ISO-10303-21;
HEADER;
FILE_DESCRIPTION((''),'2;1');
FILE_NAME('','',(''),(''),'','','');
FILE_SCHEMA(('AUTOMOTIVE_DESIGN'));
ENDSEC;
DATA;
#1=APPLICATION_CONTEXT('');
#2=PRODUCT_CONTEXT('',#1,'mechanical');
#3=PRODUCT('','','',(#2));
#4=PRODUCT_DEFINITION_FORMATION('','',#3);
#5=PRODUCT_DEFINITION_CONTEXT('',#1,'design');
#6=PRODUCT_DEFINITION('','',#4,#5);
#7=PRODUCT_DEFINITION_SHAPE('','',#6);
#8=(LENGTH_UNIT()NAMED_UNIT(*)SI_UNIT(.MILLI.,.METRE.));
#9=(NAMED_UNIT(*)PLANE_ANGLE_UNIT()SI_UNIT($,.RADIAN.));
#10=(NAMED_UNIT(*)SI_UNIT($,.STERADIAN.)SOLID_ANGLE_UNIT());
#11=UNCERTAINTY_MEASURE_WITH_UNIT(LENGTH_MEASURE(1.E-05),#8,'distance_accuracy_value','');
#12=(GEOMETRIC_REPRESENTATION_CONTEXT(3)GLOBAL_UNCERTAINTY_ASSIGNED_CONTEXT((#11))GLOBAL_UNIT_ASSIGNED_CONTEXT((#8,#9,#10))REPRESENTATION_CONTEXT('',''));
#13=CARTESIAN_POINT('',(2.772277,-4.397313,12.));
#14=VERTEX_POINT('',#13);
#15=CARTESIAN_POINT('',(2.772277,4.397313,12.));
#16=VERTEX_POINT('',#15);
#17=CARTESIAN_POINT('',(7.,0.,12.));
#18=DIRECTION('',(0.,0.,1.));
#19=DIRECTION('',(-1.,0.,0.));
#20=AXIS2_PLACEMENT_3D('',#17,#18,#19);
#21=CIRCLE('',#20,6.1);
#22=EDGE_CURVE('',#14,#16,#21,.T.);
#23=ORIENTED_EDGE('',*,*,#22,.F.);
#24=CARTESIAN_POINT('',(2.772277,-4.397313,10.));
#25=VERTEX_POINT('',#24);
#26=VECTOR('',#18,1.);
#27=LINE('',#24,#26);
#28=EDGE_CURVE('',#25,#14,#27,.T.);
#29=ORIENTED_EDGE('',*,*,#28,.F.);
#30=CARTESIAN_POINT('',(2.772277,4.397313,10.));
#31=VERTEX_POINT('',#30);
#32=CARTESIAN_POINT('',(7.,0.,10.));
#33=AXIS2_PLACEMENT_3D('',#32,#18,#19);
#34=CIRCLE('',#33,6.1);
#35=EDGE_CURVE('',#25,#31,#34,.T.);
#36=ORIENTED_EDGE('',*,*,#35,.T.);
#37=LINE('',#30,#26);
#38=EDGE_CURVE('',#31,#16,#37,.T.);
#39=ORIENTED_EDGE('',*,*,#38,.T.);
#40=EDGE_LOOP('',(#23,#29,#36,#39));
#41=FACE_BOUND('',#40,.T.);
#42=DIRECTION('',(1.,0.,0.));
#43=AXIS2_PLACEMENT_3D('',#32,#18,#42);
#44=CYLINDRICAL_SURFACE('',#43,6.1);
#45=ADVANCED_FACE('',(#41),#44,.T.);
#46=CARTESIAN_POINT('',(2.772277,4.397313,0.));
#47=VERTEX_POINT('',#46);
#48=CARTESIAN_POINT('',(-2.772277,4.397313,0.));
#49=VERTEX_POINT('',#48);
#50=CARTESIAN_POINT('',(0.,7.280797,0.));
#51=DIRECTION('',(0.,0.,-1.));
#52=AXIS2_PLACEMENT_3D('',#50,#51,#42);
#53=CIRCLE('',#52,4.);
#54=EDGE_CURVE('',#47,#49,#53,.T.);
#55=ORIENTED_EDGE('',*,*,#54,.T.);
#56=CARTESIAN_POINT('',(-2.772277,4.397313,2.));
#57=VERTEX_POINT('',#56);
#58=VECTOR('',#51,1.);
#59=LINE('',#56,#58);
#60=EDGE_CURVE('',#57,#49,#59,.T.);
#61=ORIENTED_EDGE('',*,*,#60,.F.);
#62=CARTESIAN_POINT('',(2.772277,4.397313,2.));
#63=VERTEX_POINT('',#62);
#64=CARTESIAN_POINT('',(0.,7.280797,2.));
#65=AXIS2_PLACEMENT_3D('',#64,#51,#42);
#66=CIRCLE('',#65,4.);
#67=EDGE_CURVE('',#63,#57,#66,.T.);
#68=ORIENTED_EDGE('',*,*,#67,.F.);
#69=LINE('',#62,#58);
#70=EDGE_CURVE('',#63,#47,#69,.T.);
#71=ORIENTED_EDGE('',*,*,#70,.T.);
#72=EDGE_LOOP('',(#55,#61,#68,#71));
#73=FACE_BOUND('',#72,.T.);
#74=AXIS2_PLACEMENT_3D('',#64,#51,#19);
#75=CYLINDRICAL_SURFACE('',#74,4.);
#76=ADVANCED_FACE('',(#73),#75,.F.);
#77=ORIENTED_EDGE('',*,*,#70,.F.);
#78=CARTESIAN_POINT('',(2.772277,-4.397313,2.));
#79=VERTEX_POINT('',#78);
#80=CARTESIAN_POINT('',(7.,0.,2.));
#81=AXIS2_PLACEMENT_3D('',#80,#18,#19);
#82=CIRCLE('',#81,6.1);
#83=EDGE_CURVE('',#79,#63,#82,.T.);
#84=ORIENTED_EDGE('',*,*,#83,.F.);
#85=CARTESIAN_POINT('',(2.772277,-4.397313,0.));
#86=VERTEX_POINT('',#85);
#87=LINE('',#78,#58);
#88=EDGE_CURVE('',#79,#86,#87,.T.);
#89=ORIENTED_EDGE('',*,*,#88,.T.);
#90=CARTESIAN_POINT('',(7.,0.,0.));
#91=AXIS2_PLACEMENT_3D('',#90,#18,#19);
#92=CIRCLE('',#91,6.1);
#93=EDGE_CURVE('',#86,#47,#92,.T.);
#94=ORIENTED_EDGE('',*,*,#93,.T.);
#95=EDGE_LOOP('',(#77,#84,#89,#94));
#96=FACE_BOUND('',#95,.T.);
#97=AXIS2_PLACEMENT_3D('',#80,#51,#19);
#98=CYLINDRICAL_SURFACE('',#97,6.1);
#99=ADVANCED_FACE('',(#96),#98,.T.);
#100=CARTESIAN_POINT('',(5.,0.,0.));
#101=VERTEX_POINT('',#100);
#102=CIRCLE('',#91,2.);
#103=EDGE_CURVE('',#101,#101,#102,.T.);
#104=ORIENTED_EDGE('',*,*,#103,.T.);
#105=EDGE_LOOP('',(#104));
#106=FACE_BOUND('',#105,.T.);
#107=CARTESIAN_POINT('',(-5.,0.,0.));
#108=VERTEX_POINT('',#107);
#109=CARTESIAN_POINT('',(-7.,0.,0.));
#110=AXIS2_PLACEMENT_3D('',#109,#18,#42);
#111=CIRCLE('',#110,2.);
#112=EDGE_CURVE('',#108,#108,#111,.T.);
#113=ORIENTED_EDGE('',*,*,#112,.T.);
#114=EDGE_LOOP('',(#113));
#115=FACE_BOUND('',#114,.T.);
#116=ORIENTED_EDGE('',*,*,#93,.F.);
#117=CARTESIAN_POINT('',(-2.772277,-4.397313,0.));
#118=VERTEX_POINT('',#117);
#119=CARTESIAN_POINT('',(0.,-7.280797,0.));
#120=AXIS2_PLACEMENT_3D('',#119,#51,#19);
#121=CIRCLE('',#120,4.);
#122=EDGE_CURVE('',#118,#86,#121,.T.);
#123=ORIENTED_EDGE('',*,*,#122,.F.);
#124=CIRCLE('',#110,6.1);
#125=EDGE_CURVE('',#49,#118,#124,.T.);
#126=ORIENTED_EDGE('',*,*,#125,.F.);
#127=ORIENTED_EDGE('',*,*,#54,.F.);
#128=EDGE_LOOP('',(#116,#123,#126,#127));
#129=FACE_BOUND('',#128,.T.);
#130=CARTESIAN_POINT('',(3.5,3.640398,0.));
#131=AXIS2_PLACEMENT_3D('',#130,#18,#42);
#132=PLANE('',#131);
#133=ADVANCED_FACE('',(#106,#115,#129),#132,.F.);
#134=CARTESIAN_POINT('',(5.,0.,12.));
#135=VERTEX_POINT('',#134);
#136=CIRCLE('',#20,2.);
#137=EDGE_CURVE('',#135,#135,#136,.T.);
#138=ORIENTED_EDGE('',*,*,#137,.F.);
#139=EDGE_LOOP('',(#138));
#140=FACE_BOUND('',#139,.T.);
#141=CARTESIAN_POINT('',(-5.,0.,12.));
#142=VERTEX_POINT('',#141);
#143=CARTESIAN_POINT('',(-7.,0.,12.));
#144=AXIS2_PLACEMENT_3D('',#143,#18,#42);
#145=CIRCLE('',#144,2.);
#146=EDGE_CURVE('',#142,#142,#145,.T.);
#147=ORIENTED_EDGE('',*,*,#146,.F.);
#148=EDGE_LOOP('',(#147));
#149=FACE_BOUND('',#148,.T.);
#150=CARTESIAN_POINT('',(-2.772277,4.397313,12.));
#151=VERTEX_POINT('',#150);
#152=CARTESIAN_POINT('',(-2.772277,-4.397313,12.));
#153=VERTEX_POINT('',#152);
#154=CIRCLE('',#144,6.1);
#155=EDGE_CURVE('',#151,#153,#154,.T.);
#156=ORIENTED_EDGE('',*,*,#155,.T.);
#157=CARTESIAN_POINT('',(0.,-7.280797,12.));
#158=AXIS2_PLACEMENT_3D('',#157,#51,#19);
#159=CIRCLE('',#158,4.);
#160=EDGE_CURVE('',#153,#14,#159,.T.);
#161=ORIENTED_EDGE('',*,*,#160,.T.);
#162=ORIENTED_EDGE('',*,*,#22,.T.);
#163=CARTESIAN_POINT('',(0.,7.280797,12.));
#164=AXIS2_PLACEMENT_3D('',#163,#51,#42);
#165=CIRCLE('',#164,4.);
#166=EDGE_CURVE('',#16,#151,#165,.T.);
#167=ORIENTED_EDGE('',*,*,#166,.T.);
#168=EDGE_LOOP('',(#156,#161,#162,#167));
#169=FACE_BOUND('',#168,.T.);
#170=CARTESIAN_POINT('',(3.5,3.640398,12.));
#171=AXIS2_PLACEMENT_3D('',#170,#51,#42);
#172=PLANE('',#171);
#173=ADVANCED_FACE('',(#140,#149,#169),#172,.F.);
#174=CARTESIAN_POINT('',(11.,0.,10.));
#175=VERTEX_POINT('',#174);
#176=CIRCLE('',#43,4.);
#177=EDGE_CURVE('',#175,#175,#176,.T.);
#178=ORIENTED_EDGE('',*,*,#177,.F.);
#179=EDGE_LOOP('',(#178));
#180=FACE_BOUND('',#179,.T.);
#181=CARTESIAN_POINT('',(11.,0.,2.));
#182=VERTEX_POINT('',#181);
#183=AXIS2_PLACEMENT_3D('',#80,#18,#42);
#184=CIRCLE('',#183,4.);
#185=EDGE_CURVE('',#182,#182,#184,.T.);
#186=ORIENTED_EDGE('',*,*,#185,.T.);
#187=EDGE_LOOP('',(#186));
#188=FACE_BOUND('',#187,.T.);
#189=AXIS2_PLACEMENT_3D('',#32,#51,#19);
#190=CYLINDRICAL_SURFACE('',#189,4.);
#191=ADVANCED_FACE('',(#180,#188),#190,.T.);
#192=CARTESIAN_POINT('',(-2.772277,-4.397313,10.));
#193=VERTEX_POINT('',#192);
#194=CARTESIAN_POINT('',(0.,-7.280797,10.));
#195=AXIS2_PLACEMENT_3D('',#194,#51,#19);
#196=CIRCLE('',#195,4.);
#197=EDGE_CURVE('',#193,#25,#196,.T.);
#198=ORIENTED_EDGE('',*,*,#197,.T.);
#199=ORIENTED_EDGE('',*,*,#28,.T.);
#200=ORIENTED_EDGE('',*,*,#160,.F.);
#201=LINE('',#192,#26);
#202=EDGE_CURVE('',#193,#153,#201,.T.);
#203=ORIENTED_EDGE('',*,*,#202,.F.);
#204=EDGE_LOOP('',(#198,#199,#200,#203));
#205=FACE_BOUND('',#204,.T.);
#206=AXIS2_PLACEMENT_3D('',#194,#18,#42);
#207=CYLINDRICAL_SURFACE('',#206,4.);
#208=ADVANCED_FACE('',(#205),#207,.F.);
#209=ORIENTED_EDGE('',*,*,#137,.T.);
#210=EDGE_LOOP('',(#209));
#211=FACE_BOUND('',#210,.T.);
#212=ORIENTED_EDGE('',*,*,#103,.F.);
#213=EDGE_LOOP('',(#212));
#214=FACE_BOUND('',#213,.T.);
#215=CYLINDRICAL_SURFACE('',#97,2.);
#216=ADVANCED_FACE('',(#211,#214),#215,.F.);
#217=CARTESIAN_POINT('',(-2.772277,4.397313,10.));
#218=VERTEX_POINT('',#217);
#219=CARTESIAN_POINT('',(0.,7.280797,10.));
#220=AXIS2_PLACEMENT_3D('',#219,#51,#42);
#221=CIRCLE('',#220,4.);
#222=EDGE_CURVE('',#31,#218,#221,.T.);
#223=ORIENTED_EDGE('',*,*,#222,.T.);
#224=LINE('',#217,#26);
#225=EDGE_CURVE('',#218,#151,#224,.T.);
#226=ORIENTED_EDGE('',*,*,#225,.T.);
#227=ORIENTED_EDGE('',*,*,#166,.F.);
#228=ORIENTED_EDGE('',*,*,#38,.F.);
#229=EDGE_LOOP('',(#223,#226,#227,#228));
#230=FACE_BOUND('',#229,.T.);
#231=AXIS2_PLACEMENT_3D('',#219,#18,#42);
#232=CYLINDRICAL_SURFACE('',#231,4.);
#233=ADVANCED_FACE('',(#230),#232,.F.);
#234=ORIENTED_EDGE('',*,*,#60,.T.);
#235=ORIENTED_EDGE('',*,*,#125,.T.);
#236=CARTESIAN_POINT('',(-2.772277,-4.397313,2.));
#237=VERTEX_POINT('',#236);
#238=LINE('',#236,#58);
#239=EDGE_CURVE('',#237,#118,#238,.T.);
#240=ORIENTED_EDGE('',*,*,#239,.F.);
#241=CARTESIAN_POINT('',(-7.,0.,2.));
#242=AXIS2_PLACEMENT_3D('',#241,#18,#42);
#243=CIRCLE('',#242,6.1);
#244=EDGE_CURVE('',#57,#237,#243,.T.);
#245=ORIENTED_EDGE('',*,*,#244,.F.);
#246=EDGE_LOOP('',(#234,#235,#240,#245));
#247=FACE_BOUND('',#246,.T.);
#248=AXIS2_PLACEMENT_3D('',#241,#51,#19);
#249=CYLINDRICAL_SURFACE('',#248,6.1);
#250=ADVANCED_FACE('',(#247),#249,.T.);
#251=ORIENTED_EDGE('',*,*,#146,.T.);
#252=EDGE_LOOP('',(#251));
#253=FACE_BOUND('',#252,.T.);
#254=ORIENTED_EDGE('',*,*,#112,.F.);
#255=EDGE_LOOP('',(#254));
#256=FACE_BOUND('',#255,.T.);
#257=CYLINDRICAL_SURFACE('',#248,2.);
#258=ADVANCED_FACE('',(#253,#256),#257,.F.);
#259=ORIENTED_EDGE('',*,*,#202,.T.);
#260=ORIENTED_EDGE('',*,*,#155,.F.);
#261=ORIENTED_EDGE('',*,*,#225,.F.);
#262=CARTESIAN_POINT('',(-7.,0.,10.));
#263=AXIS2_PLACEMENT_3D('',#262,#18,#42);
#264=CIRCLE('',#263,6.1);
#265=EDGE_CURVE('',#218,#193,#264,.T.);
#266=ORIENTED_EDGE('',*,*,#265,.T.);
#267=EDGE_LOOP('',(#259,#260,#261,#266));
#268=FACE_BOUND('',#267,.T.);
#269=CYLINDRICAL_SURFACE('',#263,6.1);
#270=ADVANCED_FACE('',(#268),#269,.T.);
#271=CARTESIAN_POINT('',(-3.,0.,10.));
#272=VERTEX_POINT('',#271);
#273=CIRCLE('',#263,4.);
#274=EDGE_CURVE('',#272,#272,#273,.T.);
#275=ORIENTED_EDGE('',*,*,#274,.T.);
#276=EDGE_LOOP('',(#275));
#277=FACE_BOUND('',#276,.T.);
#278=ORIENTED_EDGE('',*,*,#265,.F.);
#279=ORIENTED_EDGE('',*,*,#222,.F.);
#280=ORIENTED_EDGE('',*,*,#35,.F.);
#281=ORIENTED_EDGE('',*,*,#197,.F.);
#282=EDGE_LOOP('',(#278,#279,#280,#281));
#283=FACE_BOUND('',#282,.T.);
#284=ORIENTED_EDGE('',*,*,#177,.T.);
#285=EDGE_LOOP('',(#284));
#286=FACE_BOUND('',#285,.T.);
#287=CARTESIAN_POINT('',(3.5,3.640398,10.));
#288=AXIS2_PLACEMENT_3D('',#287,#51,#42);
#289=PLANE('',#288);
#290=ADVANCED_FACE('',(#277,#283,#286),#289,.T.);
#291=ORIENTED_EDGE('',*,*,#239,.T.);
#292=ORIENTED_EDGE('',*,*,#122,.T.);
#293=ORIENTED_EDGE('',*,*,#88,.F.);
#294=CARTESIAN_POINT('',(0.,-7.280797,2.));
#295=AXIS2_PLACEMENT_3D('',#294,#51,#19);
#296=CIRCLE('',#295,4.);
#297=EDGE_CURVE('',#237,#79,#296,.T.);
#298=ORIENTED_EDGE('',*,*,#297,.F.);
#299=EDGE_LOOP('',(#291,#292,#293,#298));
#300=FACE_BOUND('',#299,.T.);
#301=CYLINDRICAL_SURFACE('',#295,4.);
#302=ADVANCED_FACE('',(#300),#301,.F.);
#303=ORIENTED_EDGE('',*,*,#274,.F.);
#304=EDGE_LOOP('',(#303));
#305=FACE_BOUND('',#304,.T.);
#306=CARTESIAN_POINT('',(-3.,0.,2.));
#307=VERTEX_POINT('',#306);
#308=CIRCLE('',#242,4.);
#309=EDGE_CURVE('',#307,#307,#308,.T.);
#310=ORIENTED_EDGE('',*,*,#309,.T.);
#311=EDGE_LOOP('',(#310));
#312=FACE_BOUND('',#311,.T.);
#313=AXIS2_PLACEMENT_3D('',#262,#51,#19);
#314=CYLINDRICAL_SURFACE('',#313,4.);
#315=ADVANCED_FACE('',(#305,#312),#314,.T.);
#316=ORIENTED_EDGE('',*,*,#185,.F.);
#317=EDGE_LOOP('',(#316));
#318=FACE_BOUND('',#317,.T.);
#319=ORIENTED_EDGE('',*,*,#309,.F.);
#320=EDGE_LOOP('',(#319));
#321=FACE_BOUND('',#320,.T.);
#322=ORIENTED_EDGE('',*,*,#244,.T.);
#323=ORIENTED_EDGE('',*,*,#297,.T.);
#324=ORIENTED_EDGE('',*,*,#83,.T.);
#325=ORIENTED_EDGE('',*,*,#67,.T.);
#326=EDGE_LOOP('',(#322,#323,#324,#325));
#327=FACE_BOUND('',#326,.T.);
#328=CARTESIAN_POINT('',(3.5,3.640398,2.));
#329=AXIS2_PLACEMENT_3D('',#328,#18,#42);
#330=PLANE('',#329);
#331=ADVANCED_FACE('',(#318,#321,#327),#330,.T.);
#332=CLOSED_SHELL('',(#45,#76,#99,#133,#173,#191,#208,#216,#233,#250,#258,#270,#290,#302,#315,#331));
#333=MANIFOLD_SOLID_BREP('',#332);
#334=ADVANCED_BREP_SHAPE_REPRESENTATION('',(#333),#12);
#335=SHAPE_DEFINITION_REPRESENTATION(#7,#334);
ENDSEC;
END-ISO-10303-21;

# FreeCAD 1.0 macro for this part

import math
import FreeCAD as App
import Part
import Sketcher

V = App.Vector
Q = App.Units.Quantity

doc = App.newDocument("Part")
params = doc.addObject("Spreadsheet::Sheet", "Params")
for row, (alias, value) in enumerate([
    ("sketch1_diameter", "4 mm"),
    ("sketch1_radius", "4 mm"),
    ("sketch1_radius2", "6.1 mm"),
    ("pad1_length", "2 mm"),
    ("sketch2_diameter", "8 mm"),
    ("sketch2_diameter2", "4 mm"),
    ("pad2_length", "8 mm"),
], start=1):
    params.set(f"A{row}", alias)
    params.set(f"B{row}", "=" + value)
    params.setAlias(f"B{row}", alias)

body = doc.addObject("PartDesign::Body", "Body")

sketch1 = doc.addObject("Sketcher::SketchObject", "Sketch")
body.addObject(sketch1)
sketch1.AttachmentSupport = (doc.XY_Plane, [""])
sketch1.MapMode = "FlatFace"
sketch1.addGeometry(Part.ArcOfCircle(Part.Circle(V(-7, 0, 0), V(0, 0, 1), 6.1), math.radians(46), math.radians(314)), False)
sketch1.addGeometry(Part.ArcOfCircle(Part.Circle(V(0, -7.3, 0), V(0, 0, 1), 4), math.radians(46), math.radians(134)), False)
sketch1.addGeometry(Part.ArcOfCircle(Part.Circle(V(7, 0, 0), V(0, 0, 1), 6.1), math.radians(-134), math.radians(134)), False)
sketch1.addGeometry(Part.ArcOfCircle(Part.Circle(V(0, 7.3, 0), V(0, 0, 1), 4), math.radians(-134), math.radians(-46)), False)
sketch1.addGeometry(Part.Circle(V(-7, 0, 0), V(0, 0, 1), 2), False)
sketch1.addGeometry(Part.Circle(V(7, 0, 0), V(0, 0, 1), 2), False)
sketch1.addConstraint(Sketcher.Constraint("Tangent", 0, 2, 1, 2))
sketch1.addConstraint(Sketcher.Constraint("Tangent", 1, 1, 2, 1))
sketch1.addConstraint(Sketcher.Constraint("Tangent", 2, 2, 3, 2))
sketch1.addConstraint(Sketcher.Constraint("Tangent", 3, 1, 0, 1))
sketch1.addConstraint(Sketcher.Constraint("Coincident", 4, 3, 0, 3))
sketch1.addConstraint(Sketcher.Constraint("Coincident", 5, 3, 2, 3))
sketch1.addConstraint(Sketcher.Constraint("Equal", 0, 2))
sketch1.addConstraint(Sketcher.Constraint("Equal", 1, 3))
sketch1.addConstraint(Sketcher.Constraint("Equal", 4, 5))
sketch1.addConstraint(Sketcher.Constraint("Symmetric", 0, 3, 2, 3, -1, 1))
sketch1.addConstraint(Sketcher.Constraint("PointOnObject", 0, 3, -1))
sketch1.addConstraint(Sketcher.Constraint("Diameter", 4, Q("4 mm")))
sketch1.addConstraint(Sketcher.Constraint("Radius", 1, Q("4 mm")))
sketch1.addConstraint(Sketcher.Constraint("Radius", 0, Q("6.1 mm")))
sketch1.addConstraint(Sketcher.Constraint("DistanceX", 0, 3, -1, 1, Q("7 mm")))
sketch1.setExpression("Constraints[11]", "Params.sketch1_diameter")
sketch1.setExpression("Constraints[12]", "Params.sketch1_radius")
sketch1.setExpression("Constraints[13]", "Params.sketch1_radius2")
pad1 = doc.addObject("PartDesign::Pad", "Pad")
body.addObject(pad1)
pad1.Profile = sketch1
pad1.setExpression("Length", "Params.pad1_length")

sketch2 = doc.addObject("Sketcher::SketchObject", "Sketch001")
body.addObject(sketch2)
sketch2.AttachmentSupport = (doc.XY_Plane, [""])
sketch2.MapMode = "FlatFace"
sketch2.AttachmentOffset = App.Placement(V(0, 0, 2), App.Rotation())
sketch2.addGeometry(Part.Circle(V(-7, 0, 0), V(0, 0, 1), 4), False)
sketch2.addGeometry(Part.Circle(V(-7, 0, 0), V(0, 0, 1), 2), False)
sketch2.addGeometry(Part.Circle(V(7, 0, 0), V(0, 0, 1), 4), False)
sketch2.addGeometry(Part.Circle(V(7, 0, 0), V(0, 0, 1), 2), False)
sketch2.addConstraint(Sketcher.Constraint("Coincident", 1, 3, 0, 3))
sketch2.addConstraint(Sketcher.Constraint("Coincident", 3, 3, 2, 3))
sketch2.addConstraint(Sketcher.Constraint("Equal", 0, 2))
sketch2.addConstraint(Sketcher.Constraint("Equal", 1, 3))
sketch2.addConstraint(Sketcher.Constraint("Symmetric", 0, 3, 2, 3, -1, 1))
sketch2.addConstraint(Sketcher.Constraint("PointOnObject", 0, 3, -1))
sketch2.addConstraint(Sketcher.Constraint("Diameter", 0, Q("8 mm")))
sketch2.addConstraint(Sketcher.Constraint("Diameter", 1, Q("4 mm")))
sketch2.addConstraint(Sketcher.Constraint("DistanceX", 0, 3, -1, 1, Q("7 mm")))
sketch2.setExpression("Constraints[6]", "Params.sketch2_diameter")
sketch2.setExpression("Constraints[7]", "Params.sketch2_diameter2")
pad2 = doc.addObject("PartDesign::Pad", "Pad001")
body.addObject(pad2)
pad2.Profile = sketch2
pad2.setExpression("Length", "Params.pad2_length")
doc.recompute()

datumplane = doc.addObject("PartDesign::Plane", "DatumPlane")
body.addObject(datumplane)
datumplane.AttachmentSupport = (doc.XY_Plane, [""])
datumplane.MapMode = "FlatFace"
datumplane.AttachmentOffset = App.Placement(V(0, 0, 6), App.Rotation())
mirrored = doc.addObject("PartDesign::Mirrored", "Mirrored")
body.addObject(mirrored)
mirrored.Originals = [pad1]
mirrored.MirrorPlane = (datumplane, [""])
body.Tip = mirrored

doc.recompute()
